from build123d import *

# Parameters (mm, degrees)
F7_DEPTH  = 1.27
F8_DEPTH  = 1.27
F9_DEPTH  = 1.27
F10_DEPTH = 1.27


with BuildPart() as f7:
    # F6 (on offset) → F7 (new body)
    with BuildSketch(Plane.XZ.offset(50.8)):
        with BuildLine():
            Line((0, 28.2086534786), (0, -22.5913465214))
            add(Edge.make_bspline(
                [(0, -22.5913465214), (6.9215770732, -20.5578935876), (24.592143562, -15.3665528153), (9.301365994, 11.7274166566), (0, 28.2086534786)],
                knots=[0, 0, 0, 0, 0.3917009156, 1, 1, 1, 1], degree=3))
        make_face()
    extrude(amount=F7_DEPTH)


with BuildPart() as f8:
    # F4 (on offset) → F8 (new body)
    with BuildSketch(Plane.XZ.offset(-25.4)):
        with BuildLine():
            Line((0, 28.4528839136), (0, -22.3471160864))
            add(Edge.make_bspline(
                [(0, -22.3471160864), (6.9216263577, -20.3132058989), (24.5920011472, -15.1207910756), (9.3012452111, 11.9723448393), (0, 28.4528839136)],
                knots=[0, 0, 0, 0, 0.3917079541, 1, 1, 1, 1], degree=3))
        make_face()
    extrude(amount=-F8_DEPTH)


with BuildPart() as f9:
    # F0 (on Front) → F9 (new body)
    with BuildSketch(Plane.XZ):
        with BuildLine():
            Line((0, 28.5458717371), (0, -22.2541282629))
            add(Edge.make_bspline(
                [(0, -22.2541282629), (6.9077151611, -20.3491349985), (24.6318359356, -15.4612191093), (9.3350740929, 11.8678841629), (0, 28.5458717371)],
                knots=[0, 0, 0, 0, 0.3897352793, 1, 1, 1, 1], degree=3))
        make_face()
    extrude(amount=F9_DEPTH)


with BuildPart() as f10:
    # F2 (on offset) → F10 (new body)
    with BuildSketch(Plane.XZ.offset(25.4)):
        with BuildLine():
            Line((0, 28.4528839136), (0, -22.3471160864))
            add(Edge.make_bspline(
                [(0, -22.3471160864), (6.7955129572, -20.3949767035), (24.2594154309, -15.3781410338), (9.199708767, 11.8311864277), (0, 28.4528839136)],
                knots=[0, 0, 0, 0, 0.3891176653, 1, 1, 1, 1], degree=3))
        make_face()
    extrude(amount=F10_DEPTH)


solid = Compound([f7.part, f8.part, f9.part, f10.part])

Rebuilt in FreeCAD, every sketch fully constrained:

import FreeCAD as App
import Part
import Sketcher
from FreeCAD import Vector

doc = App.newDocument("Part")
params = doc.addObject("Spreadsheet::Sheet", "Params")
for row, (alias, value) in enumerate([
    ("pad1_length", "0.05 in"),
    ("pad2_length", "0.05 in"),
    ("pad3_length", "0.05 in"),
    ("pad4_length", "0.05 in"),
], start=1):
    params.set(f"A{row}", alias)
    params.set(f"B{row}", "=" + value)
    params.setAlias(f"B{row}", alias)

body = doc.addObject("PartDesign::Body", "Body")

sketch1 = doc.addObject("Sketcher::SketchObject", "Sketch")
body.addObject(sketch1)
sketch1.AttachmentSupport = (doc.XZ_Plane, [""])
sketch1.MapMode = "FlatFace"
sketch1.AttachmentOffset = App.Placement(Vector(0, 0, 2 * 25.4), App.Rotation())
sketch1.addGeometry([
    Part.LineSegment(Vector(0, 28.208653, 0), Vector(0, -22.591347, 0)),
    Part.BSplineCurve([Vector(0, -22.591347, 0), Vector(6.921577, -20.557894, 0), Vector(24.592144, -15.366553, 0), Vector(9.301366, 11.727417, 0), Vector(0, 28.208653, 0)], [4, 1, 4], [0, 0.391700916, 1], False, 3, [1, 1, 1, 1, 1], False),
], False)
sketch1.addConstraint([
    Sketcher.Constraint("Block", 1),
    Sketcher.Constraint("Coincident", 0, 1, 1, 2),
    Sketcher.Constraint("Coincident", 1, 1, 0, 2),
])
pad1 = doc.addObject("PartDesign::Pad", "Pad")
body.addObject(pad1)
pad1.Profile = sketch1
pad1.setExpression("Length", "Params.pad1_length")
body2 = doc.addObject("PartDesign::Body", "Body001")

sketch2 = doc.addObject("Sketcher::SketchObject", "Sketch001")
body2.addObject(sketch2)
sketch2.AttachmentSupport = (doc.getObject("XZ_Plane001"), [""])
sketch2.MapMode = "FlatFace"
sketch2.AttachmentOffset = App.Placement(Vector(0, 0, -1 * 25.4), App.Rotation())
sketch2.addGeometry([
    Part.LineSegment(Vector(0, 28.452884, 0), Vector(0, -22.347116, 0)),
    Part.BSplineCurve([Vector(0, -22.347116, 0), Vector(6.921626, -20.313206, 0), Vector(24.592001, -15.120791, 0), Vector(9.301245, 11.972345, 0), Vector(0, 28.452884, 0)], [4, 1, 4], [0, 0.391707954, 1], False, 3, [1, 1, 1, 1, 1], False),
], False)
sketch2.addConstraint([
    Sketcher.Constraint("Block", 1),
    Sketcher.Constraint("Coincident", 0, 1, 1, 2),
    Sketcher.Constraint("Coincident", 1, 1, 0, 2),
])
pad2 = doc.addObject("PartDesign::Pad", "Pad001")
body2.addObject(pad2)
pad2.Profile = sketch2
pad2.setExpression("Length", "Params.pad2_length")
pad2.Reversed = True
body3 = doc.addObject("PartDesign::Body", "Body002")

sketch3 = doc.addObject("Sketcher::SketchObject", "Sketch002")
body3.addObject(sketch3)
sketch3.AttachmentSupport = (doc.getObject("XZ_Plane002"), [""])
sketch3.MapMode = "FlatFace"
sketch3.addGeometry([
    Part.LineSegment(Vector(0, 28.545872, 0), Vector(0, -22.254128, 0)),
    Part.BSplineCurve([Vector(0, -22.254128, 0), Vector(6.907715, -20.349135, 0), Vector(24.631836, -15.461219, 0), Vector(9.335074, 11.867884, 0), Vector(0, 28.545872, 0)], [4, 1, 4], [0, 0.389735279, 1], False, 3, [1, 1, 1, 1, 1], False),
], False)
sketch3.addConstraint([
    Sketcher.Constraint("Block", 1),
    Sketcher.Constraint("Coincident", 0, 1, 1, 2),
    Sketcher.Constraint("Coincident", 1, 1, 0, 2),
])
pad3 = doc.addObject("PartDesign::Pad", "Pad002")
body3.addObject(pad3)
pad3.Profile = sketch3
pad3.setExpression("Length", "Params.pad3_length")
body4 = doc.addObject("PartDesign::Body", "Body003")

sketch4 = doc.addObject("Sketcher::SketchObject", "Sketch003")
body4.addObject(sketch4)
sketch4.AttachmentSupport = (doc.getObject("XZ_Plane003"), [""])
sketch4.MapMode = "FlatFace"
sketch4.AttachmentOffset = App.Placement(Vector(0, 0, 1 * 25.4), App.Rotation())
sketch4.addGeometry([
    Part.LineSegment(Vector(0, 28.452884, 0), Vector(0, -22.347116, 0)),
    Part.BSplineCurve([Vector(0, -22.347116, 0), Vector(6.795513, -20.394977, 0), Vector(24.259415, -15.378141, 0), Vector(9.199709, 11.831186, 0), Vector(0, 28.452884, 0)], [4, 1, 4], [0, 0.389117665, 1], False, 3, [1, 1, 1, 1, 1], False),
], False)
sketch4.addConstraint([
    Sketcher.Constraint("Block", 1),
    Sketcher.Constraint("Coincident", 0, 1, 1, 2),
    Sketcher.Constraint("Coincident", 1, 1, 0, 2),
])
pad4 = doc.addObject("PartDesign::Pad", "Pad003")
body4.addObject(pad4)
pad4.Profile = sketch4
pad4.setExpression("Length", "Params.pad4_length")

doc.recompute()
